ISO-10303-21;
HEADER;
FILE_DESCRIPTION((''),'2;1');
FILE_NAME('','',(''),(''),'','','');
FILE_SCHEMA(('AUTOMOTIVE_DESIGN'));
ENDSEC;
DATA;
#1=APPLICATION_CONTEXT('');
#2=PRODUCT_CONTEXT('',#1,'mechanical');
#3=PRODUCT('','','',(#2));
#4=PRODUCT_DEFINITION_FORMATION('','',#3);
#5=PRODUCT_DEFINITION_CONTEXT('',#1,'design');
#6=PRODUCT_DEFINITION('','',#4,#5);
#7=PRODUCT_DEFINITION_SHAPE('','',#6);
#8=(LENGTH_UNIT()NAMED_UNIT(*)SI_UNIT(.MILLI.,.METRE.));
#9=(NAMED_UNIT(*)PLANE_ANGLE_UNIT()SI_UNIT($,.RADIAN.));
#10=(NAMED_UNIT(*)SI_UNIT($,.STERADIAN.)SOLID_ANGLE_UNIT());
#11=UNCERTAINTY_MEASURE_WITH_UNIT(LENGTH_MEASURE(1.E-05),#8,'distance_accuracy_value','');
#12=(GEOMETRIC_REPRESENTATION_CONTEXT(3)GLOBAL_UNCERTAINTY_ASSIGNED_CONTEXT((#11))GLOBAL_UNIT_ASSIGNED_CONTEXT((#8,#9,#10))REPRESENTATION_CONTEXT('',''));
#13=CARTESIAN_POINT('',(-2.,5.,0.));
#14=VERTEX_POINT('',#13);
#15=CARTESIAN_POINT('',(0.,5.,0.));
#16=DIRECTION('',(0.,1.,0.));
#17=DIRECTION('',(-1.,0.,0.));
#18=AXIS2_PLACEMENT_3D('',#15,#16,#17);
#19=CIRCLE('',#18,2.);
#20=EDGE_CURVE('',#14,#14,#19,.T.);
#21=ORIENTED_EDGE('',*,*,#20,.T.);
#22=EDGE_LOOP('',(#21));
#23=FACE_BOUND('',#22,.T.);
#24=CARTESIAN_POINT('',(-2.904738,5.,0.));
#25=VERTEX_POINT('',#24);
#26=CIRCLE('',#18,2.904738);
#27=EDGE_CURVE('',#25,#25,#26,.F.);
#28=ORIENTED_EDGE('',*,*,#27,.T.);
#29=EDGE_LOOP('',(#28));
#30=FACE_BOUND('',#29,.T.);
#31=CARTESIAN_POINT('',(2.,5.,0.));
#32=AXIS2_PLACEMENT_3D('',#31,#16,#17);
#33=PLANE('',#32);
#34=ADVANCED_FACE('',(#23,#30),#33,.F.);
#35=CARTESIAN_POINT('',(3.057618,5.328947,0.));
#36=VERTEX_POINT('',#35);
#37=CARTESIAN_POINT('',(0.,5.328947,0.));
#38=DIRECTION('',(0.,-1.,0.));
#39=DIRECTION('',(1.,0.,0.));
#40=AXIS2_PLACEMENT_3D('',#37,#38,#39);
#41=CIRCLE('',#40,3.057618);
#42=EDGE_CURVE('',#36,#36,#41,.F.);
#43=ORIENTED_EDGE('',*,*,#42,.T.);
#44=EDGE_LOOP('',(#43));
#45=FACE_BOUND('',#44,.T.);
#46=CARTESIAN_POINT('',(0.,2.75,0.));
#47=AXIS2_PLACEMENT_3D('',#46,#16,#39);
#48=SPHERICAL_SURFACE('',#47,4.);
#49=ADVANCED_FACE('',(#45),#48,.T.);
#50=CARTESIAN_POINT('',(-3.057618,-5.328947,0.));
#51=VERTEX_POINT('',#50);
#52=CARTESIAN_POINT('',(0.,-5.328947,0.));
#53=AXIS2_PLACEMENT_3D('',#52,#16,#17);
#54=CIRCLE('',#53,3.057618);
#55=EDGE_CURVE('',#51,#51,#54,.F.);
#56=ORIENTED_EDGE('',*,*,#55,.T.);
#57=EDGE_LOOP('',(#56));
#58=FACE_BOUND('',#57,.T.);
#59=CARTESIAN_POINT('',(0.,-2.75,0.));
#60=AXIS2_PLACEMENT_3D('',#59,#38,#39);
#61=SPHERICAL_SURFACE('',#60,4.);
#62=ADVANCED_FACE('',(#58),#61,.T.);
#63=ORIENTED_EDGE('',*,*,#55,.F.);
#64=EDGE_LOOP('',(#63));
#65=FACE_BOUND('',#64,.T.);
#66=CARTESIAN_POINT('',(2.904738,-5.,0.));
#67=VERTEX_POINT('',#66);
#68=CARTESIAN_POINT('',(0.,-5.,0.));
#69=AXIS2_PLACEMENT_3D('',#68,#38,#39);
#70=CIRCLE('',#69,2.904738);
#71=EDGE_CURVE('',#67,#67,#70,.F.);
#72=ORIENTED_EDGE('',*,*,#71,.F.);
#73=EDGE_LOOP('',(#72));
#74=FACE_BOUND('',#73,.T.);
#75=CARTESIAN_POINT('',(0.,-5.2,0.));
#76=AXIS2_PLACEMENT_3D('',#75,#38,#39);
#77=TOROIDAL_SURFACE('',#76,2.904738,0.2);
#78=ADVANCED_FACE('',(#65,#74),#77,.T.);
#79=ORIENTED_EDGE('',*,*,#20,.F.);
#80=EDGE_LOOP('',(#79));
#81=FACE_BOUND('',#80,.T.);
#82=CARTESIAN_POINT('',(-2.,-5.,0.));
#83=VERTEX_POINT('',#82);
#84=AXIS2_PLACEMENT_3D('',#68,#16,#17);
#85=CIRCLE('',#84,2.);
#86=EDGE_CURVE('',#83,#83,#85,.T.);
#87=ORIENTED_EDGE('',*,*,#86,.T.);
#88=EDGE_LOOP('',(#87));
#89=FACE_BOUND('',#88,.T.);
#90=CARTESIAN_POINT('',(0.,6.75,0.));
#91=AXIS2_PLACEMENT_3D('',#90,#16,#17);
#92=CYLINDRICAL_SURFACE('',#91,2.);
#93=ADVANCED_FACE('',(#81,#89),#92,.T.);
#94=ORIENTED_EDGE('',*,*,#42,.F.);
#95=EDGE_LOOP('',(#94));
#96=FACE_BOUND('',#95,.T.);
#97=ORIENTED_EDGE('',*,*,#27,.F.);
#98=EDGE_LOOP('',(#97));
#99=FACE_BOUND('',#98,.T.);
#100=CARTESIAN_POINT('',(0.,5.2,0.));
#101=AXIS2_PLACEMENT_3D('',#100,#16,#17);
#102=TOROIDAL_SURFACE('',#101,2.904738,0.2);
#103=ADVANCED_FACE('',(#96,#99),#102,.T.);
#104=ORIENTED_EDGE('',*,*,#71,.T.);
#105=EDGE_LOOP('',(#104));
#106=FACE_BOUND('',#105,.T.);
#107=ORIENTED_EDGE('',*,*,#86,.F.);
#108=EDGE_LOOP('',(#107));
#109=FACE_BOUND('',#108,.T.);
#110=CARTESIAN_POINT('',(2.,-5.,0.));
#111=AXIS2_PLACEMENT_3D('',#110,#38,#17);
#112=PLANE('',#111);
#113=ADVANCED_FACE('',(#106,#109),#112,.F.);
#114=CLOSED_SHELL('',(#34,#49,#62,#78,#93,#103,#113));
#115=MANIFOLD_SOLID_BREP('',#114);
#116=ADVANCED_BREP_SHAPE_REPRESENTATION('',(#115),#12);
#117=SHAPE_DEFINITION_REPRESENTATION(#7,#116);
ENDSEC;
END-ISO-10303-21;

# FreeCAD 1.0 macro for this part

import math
import FreeCAD as App
import Part
import Sketcher

V = App.Vector


def edges_at(feature, points):
    """Names of the edges that pass closest to the given points."""
    edges = feature.Shape.Edges
    near = lambda p: min(range(len(edges)), key=lambda i: edges[i].distToShape(Part.Vertex(*p))[0])
    return sorted({f"Edge{near(p) + 1}" for p in points})

doc = App.newDocument("Part")
body = doc.addObject("PartDesign::Body", "Body")

sketch1 = doc.addObject("Sketcher::SketchObject", "Sketch")
body.addObject(sketch1)
sketch1.AttachmentSupport = (doc.XY_Plane, [""])
sketch1.MapMode = "FlatFace"
sketch1.addGeometry(Part.LineSegment(V(0, 0, 0), V(2, 0, 0)), False)
sketch1.addGeometry(Part.LineSegment(V(2, 0, 0), V(2, 5, 0)), False)
sketch1.addGeometry(Part.LineSegment(V(2, 5, 0), V(3.307189, 5, 0)), False)
sketch1.addGeometry(Part.ArcOfCircle(Part.Circle(V(0, 2.75, 0), V(0, 0, 1), 4), math.radians(34.228866), math.radians(90)), False)
sketch1.addGeometry(Part.LineSegment(V(0, 6.75, 0), V(0, 0, 0)), False)
sketch1.addConstraint(Sketcher.Constraint("Coincident", 0, 2, 1, 1))
sketch1.addConstraint(Sketcher.Constraint("Coincident", 1, 2, 2, 1))
sketch1.addConstraint(Sketcher.Constraint("Coincident", 2, 2, 3, 1))
sketch1.addConstraint(Sketcher.Constraint("Coincident", 3, 2, 4, 1))
sketch1.addConstraint(Sketcher.Constraint("Coincident", 4, 2, 0, 1))
sketch1.addConstraint(Sketcher.Constraint("Horizontal", 0))
sketch1.addConstraint(Sketcher.Constraint("Vertical", 1))
sketch1.addConstraint(Sketcher.Constraint("Horizontal", 2))
sketch1.addConstraint(Sketcher.Constraint("Vertical", 4))
sketch1.addConstraint(Sketcher.Constraint("Coincident", 4, 2, -1, 1))
sketch1.addConstraint(Sketcher.Constraint("PointOnObject", 3, 3, -2))
sketch1.addConstraint(Sketcher.Constraint("Radius", 3, 4.0))
sketch1.addConstraint(Sketcher.Constraint("DistanceX", 0, 1, 0, 2, 2.0))
sketch1.addConstraint(Sketcher.Constraint("DistanceY", 1, 1, 1, 2, 5.0))
sketch1.addConstraint(Sketcher.Constraint("DistanceY", 4, 2, 4, 1, 6.75))
revolution = doc.addObject("PartDesign::Revolution", "Revolution")
body.addObject(revolution)
revolution.Profile = sketch1
revolution.ReferenceAxis = (sketch1, ["V_Axis"])
revolution.Angle = 360
doc.recompute()

mirrored = doc.addObject("PartDesign::Mirrored", "Mirrored")
body.addObject(mirrored)
mirrored.Originals = [revolution]
mirrored.MirrorPlane = (doc.XZ_Plane, [""])
body.Tip = mirrored
doc.recompute()

fillet = doc.addObject("PartDesign::Fillet", "Fillet")
body.addObject(fillet)
fillet.Base = (mirrored, edges_at(mirrored, [(-3.307, -5, 0), (-3.307, 5, 0)]))
fillet.Radius = 0.2

doc.recompute()
